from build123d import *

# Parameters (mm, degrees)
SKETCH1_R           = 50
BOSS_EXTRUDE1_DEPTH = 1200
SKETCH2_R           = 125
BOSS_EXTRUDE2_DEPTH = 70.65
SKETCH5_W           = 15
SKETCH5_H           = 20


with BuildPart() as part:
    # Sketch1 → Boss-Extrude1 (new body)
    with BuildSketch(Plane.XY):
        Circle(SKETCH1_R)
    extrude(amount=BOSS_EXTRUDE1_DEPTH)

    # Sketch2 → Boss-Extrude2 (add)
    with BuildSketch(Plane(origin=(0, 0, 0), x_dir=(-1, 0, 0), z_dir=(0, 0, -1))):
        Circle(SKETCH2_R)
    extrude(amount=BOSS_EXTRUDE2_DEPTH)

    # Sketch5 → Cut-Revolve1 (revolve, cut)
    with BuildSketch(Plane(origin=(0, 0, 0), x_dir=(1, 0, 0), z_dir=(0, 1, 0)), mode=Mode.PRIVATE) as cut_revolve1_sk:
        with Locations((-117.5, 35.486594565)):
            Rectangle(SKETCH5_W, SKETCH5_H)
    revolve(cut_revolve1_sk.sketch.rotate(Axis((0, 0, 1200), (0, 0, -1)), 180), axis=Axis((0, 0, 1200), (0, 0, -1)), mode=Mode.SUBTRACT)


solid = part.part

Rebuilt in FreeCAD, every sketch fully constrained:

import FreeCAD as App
import Part
import Sketcher
from FreeCAD import Vector
Q = App.Units.Quantity


def add_polygon(sketch, points):
    """Adds a closed chain of lines whose ends are joined by coincident constraints."""
    first, n = sketch.GeometryCount, len(points)
    for a, b in zip(points, points[1:] + points[:1]):
        sketch.addGeometry(Part.LineSegment(App.Vector(*a, 0), App.Vector(*b, 0)), False)
    for i in range(n):
        sketch.addConstraint(Sketcher.Constraint("Coincident", first + i, 2, first + (i + 1) % n, 1))

doc = App.newDocument("Part")
body = doc.addObject("PartDesign::Body", "Body")

# Sketch on XY plane
sketch1 = body.newObject("Sketcher::SketchObject", "Sketch")
sketch1.AttachmentSupport = (doc.getObject("XY_Plane"), [""])
sketch1.MapMode = "FlatFace"
sketch1.addGeometry(Part.Circle(Vector(0, 0, 0), Vector(0, 0, 1), 50), False)
sketch1.addConstraint(Sketcher.Constraint("Coincident", 0, 3, -1, 1))
sketch1.addConstraint(Sketcher.Constraint("Diameter", 0, Q("100 mm")))
pad1 = body.newObject("PartDesign::Pad", "Pad")
pad1.Profile = sketch1
pad1.Length = 1200

# Sketch on XY plane
sketch2 = body.newObject("Sketcher::SketchObject", "Sketch001")
sketch2.AttachmentSupport = (doc.getObject("XY_Plane"), [""])
sketch2.MapMode = "FlatFace"
sketch2.addGeometry(Part.Circle(Vector(0, 0, 0), Vector(0, 0, 1), 125), False)
sketch2.addConstraint(Sketcher.Constraint("Coincident", 0, 3, -1, 1))
sketch2.addConstraint(Sketcher.Constraint("Diameter", 0, Q("250 mm")))
pad2 = body.newObject("PartDesign::Pad", "Pad001")
pad2.Profile = sketch2
pad2.Length = 70.65
pad2.Reversed = True

# Sketch on XZ plane
sketch3 = body.newObject("Sketcher::SketchObject", "Sketch002")
sketch3.AttachmentSupport = (doc.getObject("XZ_Plane"), [""])
sketch3.MapMode = "FlatFace"
add_polygon(sketch3, [(-125, -45), (-125, -25), (-110, -25), (-110, -45)])  # lines 0-3
sketch3.addConstraint(Sketcher.Constraint("Vertical", 0))
sketch3.addConstraint(Sketcher.Constraint("Horizontal", 1))
sketch3.addConstraint(Sketcher.Constraint("Vertical", 2))
sketch3.addConstraint(Sketcher.Constraint("Horizontal", 3))
sketch3.addConstraint(Sketcher.Constraint("DistanceX", 1, 1, 1, 2, Q("15 mm")))
sketch3.addConstraint(Sketcher.Constraint("DistanceY", 0, 1, 0, 2, Q("20 mm")))
sketch3.addConstraint(Sketcher.Constraint("DistanceX", 0, 2, -1, 1, Q("125 mm")))
sketch3.addConstraint(Sketcher.Constraint("DistanceY", 0, 2, -1, 1, Q("25.486595 mm")))
groove = body.newObject("PartDesign::Groove", "Groove")
groove.Profile = sketch3
groove.ReferenceAxis = (sketch3, ["V_Axis"])
groove.Angle = 360

doc.recompute()
